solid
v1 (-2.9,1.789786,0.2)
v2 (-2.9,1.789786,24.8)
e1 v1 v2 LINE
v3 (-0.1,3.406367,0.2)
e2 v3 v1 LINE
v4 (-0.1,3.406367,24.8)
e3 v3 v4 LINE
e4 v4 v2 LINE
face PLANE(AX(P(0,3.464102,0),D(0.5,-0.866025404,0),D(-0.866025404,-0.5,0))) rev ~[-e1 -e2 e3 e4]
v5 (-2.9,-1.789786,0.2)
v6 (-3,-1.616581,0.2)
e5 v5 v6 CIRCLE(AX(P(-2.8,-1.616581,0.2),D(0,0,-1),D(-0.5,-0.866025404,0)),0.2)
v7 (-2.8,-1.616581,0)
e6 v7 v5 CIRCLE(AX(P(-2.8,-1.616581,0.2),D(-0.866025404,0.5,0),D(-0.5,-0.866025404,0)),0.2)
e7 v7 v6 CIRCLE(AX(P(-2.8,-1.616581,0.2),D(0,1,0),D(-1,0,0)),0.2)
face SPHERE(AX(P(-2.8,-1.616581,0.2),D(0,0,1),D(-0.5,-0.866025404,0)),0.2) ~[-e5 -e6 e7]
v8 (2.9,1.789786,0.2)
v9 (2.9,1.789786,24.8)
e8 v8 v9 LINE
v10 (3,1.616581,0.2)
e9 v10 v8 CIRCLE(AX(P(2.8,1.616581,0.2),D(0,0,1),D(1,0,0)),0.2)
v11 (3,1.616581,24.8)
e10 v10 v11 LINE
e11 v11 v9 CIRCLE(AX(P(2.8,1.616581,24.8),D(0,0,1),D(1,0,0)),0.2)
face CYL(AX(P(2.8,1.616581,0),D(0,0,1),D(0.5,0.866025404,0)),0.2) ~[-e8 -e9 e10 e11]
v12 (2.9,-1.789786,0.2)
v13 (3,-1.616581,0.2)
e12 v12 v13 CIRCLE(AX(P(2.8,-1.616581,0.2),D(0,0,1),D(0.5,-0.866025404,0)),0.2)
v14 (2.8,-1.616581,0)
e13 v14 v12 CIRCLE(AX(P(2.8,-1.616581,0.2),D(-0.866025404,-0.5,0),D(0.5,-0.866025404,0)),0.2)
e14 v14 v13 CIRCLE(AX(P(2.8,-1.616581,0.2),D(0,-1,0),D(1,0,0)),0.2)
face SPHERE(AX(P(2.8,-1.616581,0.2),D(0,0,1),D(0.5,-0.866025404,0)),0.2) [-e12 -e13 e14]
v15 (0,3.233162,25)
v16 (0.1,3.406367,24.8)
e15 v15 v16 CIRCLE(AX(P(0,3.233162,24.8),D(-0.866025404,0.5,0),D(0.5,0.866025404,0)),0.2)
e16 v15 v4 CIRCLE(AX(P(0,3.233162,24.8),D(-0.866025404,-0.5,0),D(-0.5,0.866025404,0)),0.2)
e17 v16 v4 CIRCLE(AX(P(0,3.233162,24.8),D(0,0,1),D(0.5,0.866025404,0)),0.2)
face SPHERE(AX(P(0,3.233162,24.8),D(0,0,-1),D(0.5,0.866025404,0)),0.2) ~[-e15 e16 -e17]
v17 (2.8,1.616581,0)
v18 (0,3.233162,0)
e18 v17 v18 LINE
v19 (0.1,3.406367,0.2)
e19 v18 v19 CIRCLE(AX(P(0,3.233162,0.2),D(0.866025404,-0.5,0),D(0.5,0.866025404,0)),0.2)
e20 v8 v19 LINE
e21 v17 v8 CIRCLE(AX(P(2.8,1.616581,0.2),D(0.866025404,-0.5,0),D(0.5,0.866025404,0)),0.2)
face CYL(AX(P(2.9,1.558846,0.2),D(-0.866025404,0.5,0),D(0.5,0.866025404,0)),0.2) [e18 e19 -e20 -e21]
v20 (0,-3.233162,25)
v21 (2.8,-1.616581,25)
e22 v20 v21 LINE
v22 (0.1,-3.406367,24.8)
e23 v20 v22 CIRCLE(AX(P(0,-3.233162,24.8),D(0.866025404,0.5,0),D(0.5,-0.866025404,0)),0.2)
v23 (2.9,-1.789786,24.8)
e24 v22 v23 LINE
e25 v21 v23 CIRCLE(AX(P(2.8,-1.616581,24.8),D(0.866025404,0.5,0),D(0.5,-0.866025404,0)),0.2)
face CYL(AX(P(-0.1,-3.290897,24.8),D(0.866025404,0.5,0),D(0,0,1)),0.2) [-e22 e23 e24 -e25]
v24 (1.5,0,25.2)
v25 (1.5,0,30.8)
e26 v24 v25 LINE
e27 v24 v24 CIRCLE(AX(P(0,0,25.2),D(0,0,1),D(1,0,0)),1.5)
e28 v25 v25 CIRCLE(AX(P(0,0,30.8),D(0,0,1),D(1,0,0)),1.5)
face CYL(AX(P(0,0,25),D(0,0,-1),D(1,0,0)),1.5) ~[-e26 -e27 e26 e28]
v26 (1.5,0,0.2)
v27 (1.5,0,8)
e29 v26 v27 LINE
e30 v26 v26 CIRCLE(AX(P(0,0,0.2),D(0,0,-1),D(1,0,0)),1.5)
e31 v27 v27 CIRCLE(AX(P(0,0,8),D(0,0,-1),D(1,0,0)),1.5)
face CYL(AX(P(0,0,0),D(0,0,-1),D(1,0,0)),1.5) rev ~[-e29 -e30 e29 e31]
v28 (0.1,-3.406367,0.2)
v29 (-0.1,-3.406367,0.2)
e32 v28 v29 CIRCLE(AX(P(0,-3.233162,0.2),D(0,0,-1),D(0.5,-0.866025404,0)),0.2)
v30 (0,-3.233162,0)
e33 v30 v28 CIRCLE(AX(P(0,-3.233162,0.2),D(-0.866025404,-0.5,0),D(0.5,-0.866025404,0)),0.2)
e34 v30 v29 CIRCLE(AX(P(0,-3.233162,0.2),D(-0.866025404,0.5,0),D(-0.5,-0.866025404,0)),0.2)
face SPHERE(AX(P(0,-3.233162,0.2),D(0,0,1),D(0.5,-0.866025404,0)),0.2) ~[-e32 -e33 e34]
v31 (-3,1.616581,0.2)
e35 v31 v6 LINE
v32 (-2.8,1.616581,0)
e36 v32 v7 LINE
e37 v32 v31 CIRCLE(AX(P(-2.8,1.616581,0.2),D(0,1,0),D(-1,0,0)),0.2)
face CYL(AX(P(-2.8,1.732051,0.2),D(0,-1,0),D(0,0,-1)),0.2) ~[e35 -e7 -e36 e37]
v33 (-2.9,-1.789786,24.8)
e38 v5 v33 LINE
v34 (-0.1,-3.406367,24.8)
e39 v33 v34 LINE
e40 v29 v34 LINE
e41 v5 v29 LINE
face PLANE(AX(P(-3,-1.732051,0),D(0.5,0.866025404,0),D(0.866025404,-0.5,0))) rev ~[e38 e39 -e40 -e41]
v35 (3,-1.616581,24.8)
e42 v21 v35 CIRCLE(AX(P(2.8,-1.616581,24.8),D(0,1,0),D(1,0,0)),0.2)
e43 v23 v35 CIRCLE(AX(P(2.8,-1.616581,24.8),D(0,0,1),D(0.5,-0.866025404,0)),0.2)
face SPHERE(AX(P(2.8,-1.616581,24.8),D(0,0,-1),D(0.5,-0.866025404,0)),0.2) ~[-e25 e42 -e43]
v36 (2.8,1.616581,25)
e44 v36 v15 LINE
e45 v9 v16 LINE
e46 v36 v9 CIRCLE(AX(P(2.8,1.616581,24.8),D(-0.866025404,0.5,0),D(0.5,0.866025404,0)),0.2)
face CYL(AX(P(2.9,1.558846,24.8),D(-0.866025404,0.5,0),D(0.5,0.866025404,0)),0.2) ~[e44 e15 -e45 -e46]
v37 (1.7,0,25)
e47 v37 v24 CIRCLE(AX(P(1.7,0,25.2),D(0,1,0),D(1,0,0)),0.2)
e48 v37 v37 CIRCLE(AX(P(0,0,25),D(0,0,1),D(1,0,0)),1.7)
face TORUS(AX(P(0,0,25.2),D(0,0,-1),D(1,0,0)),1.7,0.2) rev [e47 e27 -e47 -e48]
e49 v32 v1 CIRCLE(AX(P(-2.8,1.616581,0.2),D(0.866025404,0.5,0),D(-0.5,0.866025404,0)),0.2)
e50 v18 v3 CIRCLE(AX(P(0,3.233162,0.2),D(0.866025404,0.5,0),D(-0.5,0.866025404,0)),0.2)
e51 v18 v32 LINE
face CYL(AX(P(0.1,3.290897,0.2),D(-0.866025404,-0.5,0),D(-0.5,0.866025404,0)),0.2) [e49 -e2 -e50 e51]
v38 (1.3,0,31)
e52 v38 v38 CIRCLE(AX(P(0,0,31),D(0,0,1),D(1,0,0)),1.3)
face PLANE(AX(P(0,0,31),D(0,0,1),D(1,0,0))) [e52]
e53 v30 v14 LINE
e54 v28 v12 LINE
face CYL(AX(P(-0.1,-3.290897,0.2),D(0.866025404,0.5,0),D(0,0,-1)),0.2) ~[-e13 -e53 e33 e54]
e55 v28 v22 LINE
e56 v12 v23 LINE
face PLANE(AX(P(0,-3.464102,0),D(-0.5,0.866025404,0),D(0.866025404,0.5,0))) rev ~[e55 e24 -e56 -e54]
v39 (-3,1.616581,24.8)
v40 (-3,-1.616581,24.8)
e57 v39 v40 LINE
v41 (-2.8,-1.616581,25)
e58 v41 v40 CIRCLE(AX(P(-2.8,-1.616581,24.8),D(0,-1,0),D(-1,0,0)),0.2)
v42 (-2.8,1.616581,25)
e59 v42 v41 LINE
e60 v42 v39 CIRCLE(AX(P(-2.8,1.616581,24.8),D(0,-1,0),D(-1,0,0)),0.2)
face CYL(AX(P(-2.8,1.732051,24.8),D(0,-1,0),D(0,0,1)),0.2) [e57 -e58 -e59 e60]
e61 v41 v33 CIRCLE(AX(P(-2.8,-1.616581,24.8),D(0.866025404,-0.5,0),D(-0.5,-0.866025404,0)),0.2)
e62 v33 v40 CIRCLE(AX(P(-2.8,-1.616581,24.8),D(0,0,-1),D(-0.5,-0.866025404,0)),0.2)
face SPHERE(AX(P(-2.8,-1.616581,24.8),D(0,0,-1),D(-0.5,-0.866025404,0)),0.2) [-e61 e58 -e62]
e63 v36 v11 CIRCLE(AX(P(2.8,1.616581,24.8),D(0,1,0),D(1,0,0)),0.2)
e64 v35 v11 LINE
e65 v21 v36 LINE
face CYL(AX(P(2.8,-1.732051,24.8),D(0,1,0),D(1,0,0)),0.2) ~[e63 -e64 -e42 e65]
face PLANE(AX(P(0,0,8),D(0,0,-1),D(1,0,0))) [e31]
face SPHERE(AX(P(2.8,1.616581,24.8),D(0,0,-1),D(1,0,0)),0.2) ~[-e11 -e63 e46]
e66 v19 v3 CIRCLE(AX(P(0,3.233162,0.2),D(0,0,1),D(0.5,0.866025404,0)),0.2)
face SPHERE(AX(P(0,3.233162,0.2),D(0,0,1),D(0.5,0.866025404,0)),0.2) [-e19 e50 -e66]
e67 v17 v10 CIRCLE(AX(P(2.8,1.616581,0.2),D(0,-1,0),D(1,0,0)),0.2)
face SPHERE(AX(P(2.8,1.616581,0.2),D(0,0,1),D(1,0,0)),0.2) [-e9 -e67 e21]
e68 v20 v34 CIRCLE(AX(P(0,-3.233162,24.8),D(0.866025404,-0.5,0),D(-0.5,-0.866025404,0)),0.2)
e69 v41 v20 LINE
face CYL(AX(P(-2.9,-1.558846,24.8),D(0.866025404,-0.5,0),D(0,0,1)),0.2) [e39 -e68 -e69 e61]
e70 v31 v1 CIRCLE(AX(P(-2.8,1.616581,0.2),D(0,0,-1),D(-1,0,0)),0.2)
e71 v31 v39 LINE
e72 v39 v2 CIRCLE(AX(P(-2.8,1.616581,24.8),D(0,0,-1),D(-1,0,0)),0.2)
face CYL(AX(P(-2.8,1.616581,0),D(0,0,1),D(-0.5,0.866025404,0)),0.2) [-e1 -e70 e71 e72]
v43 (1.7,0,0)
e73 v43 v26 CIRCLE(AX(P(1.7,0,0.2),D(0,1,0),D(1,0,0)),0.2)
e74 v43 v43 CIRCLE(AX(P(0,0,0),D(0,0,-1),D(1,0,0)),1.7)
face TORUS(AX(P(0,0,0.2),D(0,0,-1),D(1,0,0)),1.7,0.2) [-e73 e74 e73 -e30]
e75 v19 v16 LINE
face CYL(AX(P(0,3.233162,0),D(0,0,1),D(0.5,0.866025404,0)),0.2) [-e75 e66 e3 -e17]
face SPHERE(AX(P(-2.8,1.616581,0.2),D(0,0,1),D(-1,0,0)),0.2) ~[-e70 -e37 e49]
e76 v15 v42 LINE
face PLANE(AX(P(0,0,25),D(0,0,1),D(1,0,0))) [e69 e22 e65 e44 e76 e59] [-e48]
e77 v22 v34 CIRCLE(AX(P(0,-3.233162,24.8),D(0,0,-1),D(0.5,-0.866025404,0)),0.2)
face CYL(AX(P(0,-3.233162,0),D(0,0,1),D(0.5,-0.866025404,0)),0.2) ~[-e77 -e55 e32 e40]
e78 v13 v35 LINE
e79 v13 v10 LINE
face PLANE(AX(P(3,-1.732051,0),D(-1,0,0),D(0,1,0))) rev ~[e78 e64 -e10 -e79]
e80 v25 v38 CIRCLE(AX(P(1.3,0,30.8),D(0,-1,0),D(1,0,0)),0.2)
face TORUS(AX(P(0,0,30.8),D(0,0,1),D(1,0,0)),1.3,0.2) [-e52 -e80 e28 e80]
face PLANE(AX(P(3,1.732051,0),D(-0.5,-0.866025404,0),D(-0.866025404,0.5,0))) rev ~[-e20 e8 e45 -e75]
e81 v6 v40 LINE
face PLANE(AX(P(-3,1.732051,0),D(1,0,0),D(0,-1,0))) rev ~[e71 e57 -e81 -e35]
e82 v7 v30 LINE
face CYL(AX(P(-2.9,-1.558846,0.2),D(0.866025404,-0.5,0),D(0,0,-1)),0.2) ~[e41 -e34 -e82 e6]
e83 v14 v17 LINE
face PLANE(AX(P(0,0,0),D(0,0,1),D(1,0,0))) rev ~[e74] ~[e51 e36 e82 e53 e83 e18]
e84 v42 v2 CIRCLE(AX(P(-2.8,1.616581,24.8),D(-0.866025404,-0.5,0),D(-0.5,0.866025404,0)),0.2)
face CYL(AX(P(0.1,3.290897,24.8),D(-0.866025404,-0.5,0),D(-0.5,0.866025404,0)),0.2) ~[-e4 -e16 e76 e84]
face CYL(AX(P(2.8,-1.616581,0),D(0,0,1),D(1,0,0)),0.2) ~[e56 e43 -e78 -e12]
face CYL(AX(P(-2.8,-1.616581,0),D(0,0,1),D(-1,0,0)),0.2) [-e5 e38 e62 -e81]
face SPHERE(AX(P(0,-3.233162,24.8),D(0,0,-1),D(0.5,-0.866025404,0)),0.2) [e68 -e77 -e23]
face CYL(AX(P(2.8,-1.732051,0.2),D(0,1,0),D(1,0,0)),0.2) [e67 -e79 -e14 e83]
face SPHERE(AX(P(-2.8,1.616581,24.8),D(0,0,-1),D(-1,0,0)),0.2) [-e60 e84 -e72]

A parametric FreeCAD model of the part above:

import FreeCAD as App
import Part
import Sketcher
Q = App.Units.Quantity


def edges_at(feature, points):
    """Names of the edges that pass closest to the given points."""
    edges = feature.Shape.Edges
    near = lambda p: min(range(len(edges)), key=lambda i: edges[i].distToShape(Part.Vertex(*p))[0])
    return sorted({f"Edge{near(p) + 1}" for p in points})


def add_polygon(sketch, points):
    """Adds a closed chain of lines whose ends are joined by coincident constraints."""
    first, n = sketch.GeometryCount, len(points)
    for a, b in zip(points, points[1:] + points[:1]):
        sketch.addGeometry(Part.LineSegment(App.Vector(*a, 0), App.Vector(*b, 0)), False)
    for i in range(n):
        sketch.addConstraint(Sketcher.Constraint("Coincident", first + i, 2, first + (i + 1) % n, 1))

doc = App.newDocument("Part")
body = doc.addObject("PartDesign::Body", "Body")

# Sketch on XY plane
sketch1 = doc.addObject("Sketcher::SketchObject", "Sketch")
body.addObject(sketch1)
sketch1.AttachmentSupport = (doc.XY_Plane, [""])
sketch1.MapMode = "FlatFace"
add_polygon(sketch1, [(3, 1.732051), (0, 3.464102), (-3, 1.732051), (-3, -1.732051), (0, -3.464102), (3, -1.732051)])  # lines 0-5
sketch1.addConstraint([
    Sketcher.Constraint("Vertical", 2),
    Sketcher.Constraint("Vertical", 5),
    Sketcher.Constraint("Symmetric", 0, 2, 3, 2, -1, 1),
    Sketcher.Constraint("Symmetric", 1, 2, 4, 2, -1, 1),
    Sketcher.Constraint("PointOnObject", 0, 2, -2),
    Sketcher.Constraint("Parallel", 0, 3),
    Sketcher.Constraint("Horizontal", 2, 2, 4, 2),
    Sketcher.Constraint("Angle", 0, Q("150 deg")),
    Sketcher.Constraint("DistanceX", 1, 2, -1, 1, Q("3 mm")),
    Sketcher.Constraint("DistanceY", 2, 2, 2, 1, Q("3.464102 mm")),
])
pad1 = doc.addObject("PartDesign::Pad", "Pad")
body.addObject(pad1)
pad1.Profile = sketch1
pad1.Length = 25

# Sketch on XY plane
sketch2 = doc.addObject("Sketcher::SketchObject", "Sketch001")
body.addObject(sketch2)
sketch2.AttachmentSupport = (doc.XY_Plane, [""])
sketch2.MapMode = "FlatFace"
sketch2.AttachmentOffset = App.Placement(App.Vector(0, 0, 25), App.Rotation())
sketch2.addGeometry(Part.Circle(App.Vector(0, 0, 0), App.Vector(0, 0, 1), 1.5), False)
sketch2.addConstraint([
    Sketcher.Constraint("Coincident", 0, 3, -1, 1),
    Sketcher.Constraint("Diameter", 0, Q("3 mm")),
])
pad2 = doc.addObject("PartDesign::Pad", "Pad001")
body.addObject(pad2)
pad2.Profile = sketch2
pad2.Length = 6

# Sketch on XY plane
sketch3 = doc.addObject("Sketcher::SketchObject", "Sketch002")
body.addObject(sketch3)
sketch3.AttachmentSupport = (doc.XY_Plane, [""])
sketch3.MapMode = "FlatFace"
sketch3.addGeometry(Part.Circle(App.Vector(0, 0, 0), App.Vector(0, 0, 1), 1.5), False)
sketch3.addConstraint([
    Sketcher.Constraint("Coincident", 0, 3, -1, 1),
    Sketcher.Constraint("Diameter", 0, Q("3 mm")),
])
pocket1 = doc.addObject("PartDesign::Pocket", "Pocket")
body.addObject(pocket1)
pocket1.Profile = sketch3
pocket1.Length = 8
pocket1.Reversed = True
doc.recompute()

fillet = doc.addObject("PartDesign::Fillet", "Fillet")
body.addObject(fillet)
fillet.Base = (pocket1, edges_at(pocket1, [
    (1.5, -2.598, 0),
    (-1.5, -2.598, 0),
    (3, 0, 0),
    (-3, 0, 0),
    (1.5, 2.598, 0),
    (-1.5, 2.598, 0),
    (-1.5, 0, 0),
    (1.5, -2.598, 25),
    (-1.5, -2.598, 25),
    (3, 0, 25),
    (-3, 0, 25),
    (1.5, 2.598, 25),
    (-1.5, 2.598, 25),
    (-1.5, 0, 25),
    (-1.5, 0, 31),
    (-3, -1.732, 12.5),
    (0, -3.464, 12.5),
    (-3, 1.732, 12.5),
    (0, 3.464, 12.5),
    (3, 1.732, 12.5),
    (3, -1.732, 12.5),
]))
fillet.Radius = 0.2

doc.recompute()
